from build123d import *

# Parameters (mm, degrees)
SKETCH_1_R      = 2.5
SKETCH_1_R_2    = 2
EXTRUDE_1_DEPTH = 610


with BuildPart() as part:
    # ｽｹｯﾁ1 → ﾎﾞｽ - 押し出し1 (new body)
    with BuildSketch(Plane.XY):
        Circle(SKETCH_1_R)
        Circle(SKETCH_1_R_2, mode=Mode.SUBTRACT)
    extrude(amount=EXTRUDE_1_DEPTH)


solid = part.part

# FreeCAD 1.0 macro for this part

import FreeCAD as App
import Part
import Sketcher

V = App.Vector

doc = App.newDocument("Part")
params = doc.addObject("Spreadsheet::Sheet", "Params")
for row, (alias, value) in enumerate([
    ("sketch1_diameter", "5 mm"),
    ("sketch1_diameter2", "4 mm"),
    ("pad1_length", "610 mm"),
], start=1):
    params.set(f"A{row}", alias)
    params.set(f"B{row}", "=" + value)
    params.setAlias(f"B{row}", alias)

body = doc.addObject("PartDesign::Body", "Body")

# Sketch on XY plane
sketch1 = body.newObject("Sketcher::SketchObject", "Sketch")
sketch1.AttachmentSupport = (doc.getObject("XY_Plane"), [""])
sketch1.MapMode = "FlatFace"
sketch1.addGeometry([
    Part.Circle(V(0, 0, 0), V(0, 0, 1), 2.5),
    Part.Circle(V(0, 0, 0), V(0, 0, 1), 2),
], False)
sketch1.addConstraint([
    Sketcher.Constraint("Coincident", 0, 3, -1, 1),
    Sketcher.Constraint("Coincident", 1, 3, -1, 1),
    Sketcher.Constraint("Diameter", 0, 5.0),
    Sketcher.Constraint("Diameter", 1, 4.0),
])
sketch1.setExpression("Constraints[2]", "Params.sketch1_diameter")
sketch1.setExpression("Constraints[3]", "Params.sketch1_diameter2")
pad1 = body.newObject("PartDesign::Pad", "Pad")
pad1.Profile = sketch1
pad1.setExpression("Length", "Params.pad1_length")

doc.recompute()
